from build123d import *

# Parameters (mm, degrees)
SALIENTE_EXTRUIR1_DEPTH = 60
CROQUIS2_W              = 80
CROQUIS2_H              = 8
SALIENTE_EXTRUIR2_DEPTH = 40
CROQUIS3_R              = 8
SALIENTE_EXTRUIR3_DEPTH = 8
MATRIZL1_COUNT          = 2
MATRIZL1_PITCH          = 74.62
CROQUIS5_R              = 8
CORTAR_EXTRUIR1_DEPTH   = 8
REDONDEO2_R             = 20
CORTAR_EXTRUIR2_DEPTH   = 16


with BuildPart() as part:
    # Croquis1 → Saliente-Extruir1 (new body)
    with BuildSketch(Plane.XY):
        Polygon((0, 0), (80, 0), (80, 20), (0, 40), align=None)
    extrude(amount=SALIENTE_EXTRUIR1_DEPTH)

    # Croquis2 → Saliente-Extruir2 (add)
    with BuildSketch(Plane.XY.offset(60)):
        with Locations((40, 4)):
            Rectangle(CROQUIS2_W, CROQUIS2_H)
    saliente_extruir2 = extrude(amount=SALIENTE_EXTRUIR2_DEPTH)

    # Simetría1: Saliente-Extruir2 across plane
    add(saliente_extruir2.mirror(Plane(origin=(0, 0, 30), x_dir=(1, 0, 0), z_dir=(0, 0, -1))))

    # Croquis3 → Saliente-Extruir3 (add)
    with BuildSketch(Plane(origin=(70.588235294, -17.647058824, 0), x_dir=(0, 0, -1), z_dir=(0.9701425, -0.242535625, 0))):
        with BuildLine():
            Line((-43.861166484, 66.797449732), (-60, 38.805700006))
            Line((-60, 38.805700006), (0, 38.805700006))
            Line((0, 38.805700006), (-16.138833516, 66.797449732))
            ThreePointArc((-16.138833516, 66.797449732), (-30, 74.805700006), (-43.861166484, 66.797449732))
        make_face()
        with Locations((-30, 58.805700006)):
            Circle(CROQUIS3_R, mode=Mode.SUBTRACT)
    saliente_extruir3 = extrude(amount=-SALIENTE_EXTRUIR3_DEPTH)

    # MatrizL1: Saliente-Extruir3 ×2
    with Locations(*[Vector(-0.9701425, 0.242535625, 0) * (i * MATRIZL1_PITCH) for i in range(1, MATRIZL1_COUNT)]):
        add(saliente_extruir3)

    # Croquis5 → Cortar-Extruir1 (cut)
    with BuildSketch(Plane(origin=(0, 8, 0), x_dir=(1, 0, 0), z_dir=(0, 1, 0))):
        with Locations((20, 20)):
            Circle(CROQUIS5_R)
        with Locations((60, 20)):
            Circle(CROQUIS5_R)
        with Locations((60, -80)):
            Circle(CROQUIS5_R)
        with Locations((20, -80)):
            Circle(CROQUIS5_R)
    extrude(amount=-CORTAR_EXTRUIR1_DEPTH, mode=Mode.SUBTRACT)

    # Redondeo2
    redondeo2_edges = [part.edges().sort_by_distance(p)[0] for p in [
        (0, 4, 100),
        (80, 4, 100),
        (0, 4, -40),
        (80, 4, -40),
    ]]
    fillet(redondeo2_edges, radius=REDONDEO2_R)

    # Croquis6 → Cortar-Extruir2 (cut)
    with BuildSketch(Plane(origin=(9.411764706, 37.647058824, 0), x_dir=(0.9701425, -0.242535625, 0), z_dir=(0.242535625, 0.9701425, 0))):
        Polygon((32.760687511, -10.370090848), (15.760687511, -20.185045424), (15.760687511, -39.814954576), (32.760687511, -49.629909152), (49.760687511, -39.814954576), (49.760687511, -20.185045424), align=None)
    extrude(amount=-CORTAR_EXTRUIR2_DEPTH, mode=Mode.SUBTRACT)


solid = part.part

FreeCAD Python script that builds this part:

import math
import FreeCAD as App
import Part
import Sketcher
from FreeCAD import Vector
Q = App.Units.Quantity


def edges_at(feature, points):
    """Names of the edges that pass closest to the given points."""
    edges = feature.Shape.Edges
    near = lambda p: min(range(len(edges)), key=lambda i: edges[i].distToShape(Part.Vertex(*p))[0])
    return sorted({f"Edge{near(p) + 1}" for p in points})


def add_polygon(sketch, points):
    """Adds a closed chain of lines whose ends are joined by coincident constraints."""
    first, n = sketch.GeometryCount, len(points)
    for a, b in zip(points, points[1:] + points[:1]):
        sketch.addGeometry(Part.LineSegment(App.Vector(*a, 0), App.Vector(*b, 0)), False)
    for i in range(n):
        sketch.addConstraint(Sketcher.Constraint("Coincident", first + i, 2, first + (i + 1) % n, 1))

doc = App.newDocument("Part")
body = doc.addObject("PartDesign::Body", "Body")

sketch1 = body.newObject("Sketcher::SketchObject", "Sketch")
sketch1.AttachmentSupport = (doc.getObject("XY_Plane"), [""])
sketch1.MapMode = "FlatFace"
add_polygon(sketch1, [(0, 0), (80, 0), (80, 20), (0, 40)])
sketch1.addConstraint([
    Sketcher.Constraint("Horizontal", 0),
    Sketcher.Constraint("Vertical", 1),
    Sketcher.Constraint("Vertical", 3),
    Sketcher.Constraint("Coincident", 3, 2, -1, 1),
    Sketcher.Constraint("DistanceX", 0, 1, 0, 2, 80.0),
    Sketcher.Constraint("DistanceY", 1, 1, 1, 2, 20.0),
    Sketcher.Constraint("DistanceY", 3, 2, 3, 1, 40.0),
])
pad1 = body.newObject("PartDesign::Pad", "Pad")
pad1.Profile = sketch1
pad1.Length = 60

sketch2 = body.newObject("Sketcher::SketchObject", "Sketch001")
sketch2.AttachmentSupport = (doc.getObject("XY_Plane"), [""])
sketch2.MapMode = "FlatFace"
sketch2.AttachmentOffset = App.Placement(Vector(0, 0, 60), App.Rotation())
add_polygon(sketch2, [(0, 8), (0, 0), (80, 0), (80, 8)])
sketch2.addConstraint([
    Sketcher.Constraint("Vertical", 0),
    Sketcher.Constraint("Horizontal", 1),
    Sketcher.Constraint("Vertical", 2),
    Sketcher.Constraint("Horizontal", 3),
    Sketcher.Constraint("Coincident", 0, 2, -1, 1),
    Sketcher.Constraint("DistanceX", 1, 1, 1, 2, 80.0),
    Sketcher.Constraint("DistanceY", 0, 2, 0, 1, 8.0),
])
pad2 = body.newObject("PartDesign::Pad", "Pad001")
pad2.Profile = sketch2
pad2.Length = 40
doc.recompute()

datumplane = body.newObject("PartDesign::Plane", "DatumPlane")
datumplane.AttachmentSupport = (doc.getObject("XY_Plane"), [""])
datumplane.MapMode = "FlatFace"
datumplane.AttachmentOffset = App.Placement(Vector(0, 0, 30), App.Rotation())
mirrored = body.newObject("PartDesign::Mirrored", "Mirrored")
mirrored.Originals = [pad2]
mirrored.MirrorPlane = (datumplane, [""])
body.Tip = mirrored

sketch3 = body.newObject("Sketcher::SketchObject", "Sketch002")
sketch3.Placement = App.Placement(Vector(70.588235, -17.647059, 0), App.Rotation(Vector(0, 0, -1), Vector(0.242535625, 0.9701425, 0), Vector(0.9701425, -0.242535625, 0), "ZXY"))
sketch3.addGeometry([
    Part.LineSegment(Vector(-43.861166, 66.79745, 0), Vector(-60, 38.8057, 0)),
    Part.LineSegment(Vector(-60, 38.8057, 0), Vector(0, 38.8057, 0)),
    Part.LineSegment(Vector(0, 38.8057, 0), Vector(-16.138834, 66.79745, 0)),
    Part.ArcOfCircle(Part.Circle(Vector(-30, 58.8057, 0), Vector(0, 0, 1), 16), math.radians(29.965891), math.radians(150.034109)),
    Part.Circle(Vector(-30, 58.8057, 0), Vector(0, 0, 1), 8),
], False)
sketch3.addConstraint([
    Sketcher.Constraint("Coincident", 0, 2, 1, 1),
    Sketcher.Constraint("Coincident", 1, 2, 2, 1),
    Sketcher.Constraint("Tangent", 2, 2, 3, 1),
    Sketcher.Constraint("Tangent", 3, 2, 0, 1),
    Sketcher.Constraint("Horizontal", 1),
    Sketcher.Constraint("Coincident", 4, 3, 3, 3),
    Sketcher.Constraint("PointOnObject", 1, 2, -2),
    Sketcher.Constraint("Horizontal", 2, 2, 3, 2),
    Sketcher.Constraint("Diameter", 4, 16.0),
    Sketcher.Constraint("Radius", 3, 16.0),
    Sketcher.Constraint("DistanceX", 1, 1, 1, 2, 60.0),
    Sketcher.Constraint("DistanceY", 0, 2, 4, 3, 20.0),
    Sketcher.Constraint("DistanceY", -1, 1, 3, 3, 58.8057),
])
pad3 = body.newObject("PartDesign::Pad", "Pad002")
pad3.Profile = sketch3
pad3.Length = 8
pad3.Reversed = True
doc.recompute()

datumline = body.newObject("PartDesign::Line", "DatumLine")
datumline.Placement = App.Placement(Vector(0, 0, 0), App.Rotation(Vector(0, 0, 1), Vector(-0.9701425, 0.242535625, 0)))
linearpattern = body.newObject("PartDesign::LinearPattern", "LinearPattern")
linearpattern.Originals = [pad3]
linearpattern.Direction = (datumline, [""])
linearpattern.Mode = "offset"
linearpattern.Offset = 74.62
linearpattern.Occurrences = 2
body.Tip = linearpattern

sketch4 = body.newObject("Sketcher::SketchObject", "Sketch003")
sketch4.AttachmentSupport = (doc.getObject("XZ_Plane"), [""])
sketch4.MapMode = "FlatFace"
sketch4.AttachmentOffset = App.Placement(Vector(0, 0, -8), App.Rotation())
sketch4.addGeometry([
    Part.Circle(Vector(20, -20, 0), Vector(0, 0, 1), 8),
    Part.Circle(Vector(60, -20, 0), Vector(0, 0, 1), 8),
    Part.Circle(Vector(60, 80, 0), Vector(0, 0, 1), 8),
    Part.Circle(Vector(20, 80, 0), Vector(0, 0, 1), 8),
], False)
sketch4.addConstraint([
    Sketcher.Constraint("Equal", 0, 1),
    Sketcher.Constraint("Equal", 1, 2),
    Sketcher.Constraint("Equal", 2, 3),
    Sketcher.Constraint("Horizontal", 0, 3, 1, 3),
    Sketcher.Constraint("Horizontal", 2, 3, 3, 3),
    Sketcher.Constraint("Vertical", 1, 3, 2, 3),
    Sketcher.Constraint("Vertical", 0, 3, 3, 3),
    Sketcher.Constraint("Diameter", 0, 16.0),
    Sketcher.Constraint("DistanceX", -1, 1, 0, 3, 20.0),
    Sketcher.Constraint("DistanceY", 0, 3, -1, 1, 20.0),
    Sketcher.Constraint("DistanceX", -1, 1, 1, 3, 60.0),
    Sketcher.Constraint("DistanceY", -1, 1, 2, 3, 80.0),
])
pocket1 = body.newObject("PartDesign::Pocket", "Pocket")
pocket1.Profile = sketch4
pocket1.Length = 8
pocket1.Reversed = True
doc.recompute()

fillet = body.newObject("PartDesign::Fillet", "Fillet")
fillet.Base = (pocket1, edges_at(pocket1, [
    (0, 4, 100),
    (80, 4, 100),
    (0, 4, -40),
    (80, 4, -40),
]))
fillet.Radius = 20

sketch5 = body.newObject("Sketcher::SketchObject", "Sketch004")
sketch5.Placement = App.Placement(Vector(9.411765, 37.647059, 0), App.Rotation(Vector(0.9701425, -0.242535625, 0), Vector(0, 0, -1), Vector(0.242535625, 0.9701425, 0), "ZXY"))
add_polygon(sketch5, [(32.760688, -10.370091), (15.760688, -20.185045), (15.760688, -39.814955), (32.760688, -49.629909), (49.760687, -39.814955), (49.760687, -20.185045)])
sketch5.addConstraint([
    Sketcher.Constraint("Vertical", 1),
    Sketcher.Constraint("Vertical", 4),
    Sketcher.Constraint("Parallel", 0, 3),
    Sketcher.Constraint("Parallel", 2, 5),
    Sketcher.Constraint("Horizontal", 1, 2, 3, 2),
    Sketcher.Constraint("Horizontal", 0, 2, 4, 2),
    Sketcher.Constraint("Vertical", 2, 2, 5, 2),
    Sketcher.Constraint("Angle", 0, Q("-150 deg")),
    Sketcher.Constraint("DistanceX", 1, 2, 2, 2, 17.0),
    Sketcher.Constraint("DistanceY", 1, 2, 1, 1, 19.629909),
    Sketcher.Constraint("DistanceY", 2, 2, -1, 1, 49.629909),
    Sketcher.Constraint("DistanceX", -1, 1, 0, 2, 15.760688),
])
pocket2 = body.newObject("PartDesign::Pocket", "Pocket001")
pocket2.Profile = sketch5
pocket2.Length = 16

doc.recompute()
